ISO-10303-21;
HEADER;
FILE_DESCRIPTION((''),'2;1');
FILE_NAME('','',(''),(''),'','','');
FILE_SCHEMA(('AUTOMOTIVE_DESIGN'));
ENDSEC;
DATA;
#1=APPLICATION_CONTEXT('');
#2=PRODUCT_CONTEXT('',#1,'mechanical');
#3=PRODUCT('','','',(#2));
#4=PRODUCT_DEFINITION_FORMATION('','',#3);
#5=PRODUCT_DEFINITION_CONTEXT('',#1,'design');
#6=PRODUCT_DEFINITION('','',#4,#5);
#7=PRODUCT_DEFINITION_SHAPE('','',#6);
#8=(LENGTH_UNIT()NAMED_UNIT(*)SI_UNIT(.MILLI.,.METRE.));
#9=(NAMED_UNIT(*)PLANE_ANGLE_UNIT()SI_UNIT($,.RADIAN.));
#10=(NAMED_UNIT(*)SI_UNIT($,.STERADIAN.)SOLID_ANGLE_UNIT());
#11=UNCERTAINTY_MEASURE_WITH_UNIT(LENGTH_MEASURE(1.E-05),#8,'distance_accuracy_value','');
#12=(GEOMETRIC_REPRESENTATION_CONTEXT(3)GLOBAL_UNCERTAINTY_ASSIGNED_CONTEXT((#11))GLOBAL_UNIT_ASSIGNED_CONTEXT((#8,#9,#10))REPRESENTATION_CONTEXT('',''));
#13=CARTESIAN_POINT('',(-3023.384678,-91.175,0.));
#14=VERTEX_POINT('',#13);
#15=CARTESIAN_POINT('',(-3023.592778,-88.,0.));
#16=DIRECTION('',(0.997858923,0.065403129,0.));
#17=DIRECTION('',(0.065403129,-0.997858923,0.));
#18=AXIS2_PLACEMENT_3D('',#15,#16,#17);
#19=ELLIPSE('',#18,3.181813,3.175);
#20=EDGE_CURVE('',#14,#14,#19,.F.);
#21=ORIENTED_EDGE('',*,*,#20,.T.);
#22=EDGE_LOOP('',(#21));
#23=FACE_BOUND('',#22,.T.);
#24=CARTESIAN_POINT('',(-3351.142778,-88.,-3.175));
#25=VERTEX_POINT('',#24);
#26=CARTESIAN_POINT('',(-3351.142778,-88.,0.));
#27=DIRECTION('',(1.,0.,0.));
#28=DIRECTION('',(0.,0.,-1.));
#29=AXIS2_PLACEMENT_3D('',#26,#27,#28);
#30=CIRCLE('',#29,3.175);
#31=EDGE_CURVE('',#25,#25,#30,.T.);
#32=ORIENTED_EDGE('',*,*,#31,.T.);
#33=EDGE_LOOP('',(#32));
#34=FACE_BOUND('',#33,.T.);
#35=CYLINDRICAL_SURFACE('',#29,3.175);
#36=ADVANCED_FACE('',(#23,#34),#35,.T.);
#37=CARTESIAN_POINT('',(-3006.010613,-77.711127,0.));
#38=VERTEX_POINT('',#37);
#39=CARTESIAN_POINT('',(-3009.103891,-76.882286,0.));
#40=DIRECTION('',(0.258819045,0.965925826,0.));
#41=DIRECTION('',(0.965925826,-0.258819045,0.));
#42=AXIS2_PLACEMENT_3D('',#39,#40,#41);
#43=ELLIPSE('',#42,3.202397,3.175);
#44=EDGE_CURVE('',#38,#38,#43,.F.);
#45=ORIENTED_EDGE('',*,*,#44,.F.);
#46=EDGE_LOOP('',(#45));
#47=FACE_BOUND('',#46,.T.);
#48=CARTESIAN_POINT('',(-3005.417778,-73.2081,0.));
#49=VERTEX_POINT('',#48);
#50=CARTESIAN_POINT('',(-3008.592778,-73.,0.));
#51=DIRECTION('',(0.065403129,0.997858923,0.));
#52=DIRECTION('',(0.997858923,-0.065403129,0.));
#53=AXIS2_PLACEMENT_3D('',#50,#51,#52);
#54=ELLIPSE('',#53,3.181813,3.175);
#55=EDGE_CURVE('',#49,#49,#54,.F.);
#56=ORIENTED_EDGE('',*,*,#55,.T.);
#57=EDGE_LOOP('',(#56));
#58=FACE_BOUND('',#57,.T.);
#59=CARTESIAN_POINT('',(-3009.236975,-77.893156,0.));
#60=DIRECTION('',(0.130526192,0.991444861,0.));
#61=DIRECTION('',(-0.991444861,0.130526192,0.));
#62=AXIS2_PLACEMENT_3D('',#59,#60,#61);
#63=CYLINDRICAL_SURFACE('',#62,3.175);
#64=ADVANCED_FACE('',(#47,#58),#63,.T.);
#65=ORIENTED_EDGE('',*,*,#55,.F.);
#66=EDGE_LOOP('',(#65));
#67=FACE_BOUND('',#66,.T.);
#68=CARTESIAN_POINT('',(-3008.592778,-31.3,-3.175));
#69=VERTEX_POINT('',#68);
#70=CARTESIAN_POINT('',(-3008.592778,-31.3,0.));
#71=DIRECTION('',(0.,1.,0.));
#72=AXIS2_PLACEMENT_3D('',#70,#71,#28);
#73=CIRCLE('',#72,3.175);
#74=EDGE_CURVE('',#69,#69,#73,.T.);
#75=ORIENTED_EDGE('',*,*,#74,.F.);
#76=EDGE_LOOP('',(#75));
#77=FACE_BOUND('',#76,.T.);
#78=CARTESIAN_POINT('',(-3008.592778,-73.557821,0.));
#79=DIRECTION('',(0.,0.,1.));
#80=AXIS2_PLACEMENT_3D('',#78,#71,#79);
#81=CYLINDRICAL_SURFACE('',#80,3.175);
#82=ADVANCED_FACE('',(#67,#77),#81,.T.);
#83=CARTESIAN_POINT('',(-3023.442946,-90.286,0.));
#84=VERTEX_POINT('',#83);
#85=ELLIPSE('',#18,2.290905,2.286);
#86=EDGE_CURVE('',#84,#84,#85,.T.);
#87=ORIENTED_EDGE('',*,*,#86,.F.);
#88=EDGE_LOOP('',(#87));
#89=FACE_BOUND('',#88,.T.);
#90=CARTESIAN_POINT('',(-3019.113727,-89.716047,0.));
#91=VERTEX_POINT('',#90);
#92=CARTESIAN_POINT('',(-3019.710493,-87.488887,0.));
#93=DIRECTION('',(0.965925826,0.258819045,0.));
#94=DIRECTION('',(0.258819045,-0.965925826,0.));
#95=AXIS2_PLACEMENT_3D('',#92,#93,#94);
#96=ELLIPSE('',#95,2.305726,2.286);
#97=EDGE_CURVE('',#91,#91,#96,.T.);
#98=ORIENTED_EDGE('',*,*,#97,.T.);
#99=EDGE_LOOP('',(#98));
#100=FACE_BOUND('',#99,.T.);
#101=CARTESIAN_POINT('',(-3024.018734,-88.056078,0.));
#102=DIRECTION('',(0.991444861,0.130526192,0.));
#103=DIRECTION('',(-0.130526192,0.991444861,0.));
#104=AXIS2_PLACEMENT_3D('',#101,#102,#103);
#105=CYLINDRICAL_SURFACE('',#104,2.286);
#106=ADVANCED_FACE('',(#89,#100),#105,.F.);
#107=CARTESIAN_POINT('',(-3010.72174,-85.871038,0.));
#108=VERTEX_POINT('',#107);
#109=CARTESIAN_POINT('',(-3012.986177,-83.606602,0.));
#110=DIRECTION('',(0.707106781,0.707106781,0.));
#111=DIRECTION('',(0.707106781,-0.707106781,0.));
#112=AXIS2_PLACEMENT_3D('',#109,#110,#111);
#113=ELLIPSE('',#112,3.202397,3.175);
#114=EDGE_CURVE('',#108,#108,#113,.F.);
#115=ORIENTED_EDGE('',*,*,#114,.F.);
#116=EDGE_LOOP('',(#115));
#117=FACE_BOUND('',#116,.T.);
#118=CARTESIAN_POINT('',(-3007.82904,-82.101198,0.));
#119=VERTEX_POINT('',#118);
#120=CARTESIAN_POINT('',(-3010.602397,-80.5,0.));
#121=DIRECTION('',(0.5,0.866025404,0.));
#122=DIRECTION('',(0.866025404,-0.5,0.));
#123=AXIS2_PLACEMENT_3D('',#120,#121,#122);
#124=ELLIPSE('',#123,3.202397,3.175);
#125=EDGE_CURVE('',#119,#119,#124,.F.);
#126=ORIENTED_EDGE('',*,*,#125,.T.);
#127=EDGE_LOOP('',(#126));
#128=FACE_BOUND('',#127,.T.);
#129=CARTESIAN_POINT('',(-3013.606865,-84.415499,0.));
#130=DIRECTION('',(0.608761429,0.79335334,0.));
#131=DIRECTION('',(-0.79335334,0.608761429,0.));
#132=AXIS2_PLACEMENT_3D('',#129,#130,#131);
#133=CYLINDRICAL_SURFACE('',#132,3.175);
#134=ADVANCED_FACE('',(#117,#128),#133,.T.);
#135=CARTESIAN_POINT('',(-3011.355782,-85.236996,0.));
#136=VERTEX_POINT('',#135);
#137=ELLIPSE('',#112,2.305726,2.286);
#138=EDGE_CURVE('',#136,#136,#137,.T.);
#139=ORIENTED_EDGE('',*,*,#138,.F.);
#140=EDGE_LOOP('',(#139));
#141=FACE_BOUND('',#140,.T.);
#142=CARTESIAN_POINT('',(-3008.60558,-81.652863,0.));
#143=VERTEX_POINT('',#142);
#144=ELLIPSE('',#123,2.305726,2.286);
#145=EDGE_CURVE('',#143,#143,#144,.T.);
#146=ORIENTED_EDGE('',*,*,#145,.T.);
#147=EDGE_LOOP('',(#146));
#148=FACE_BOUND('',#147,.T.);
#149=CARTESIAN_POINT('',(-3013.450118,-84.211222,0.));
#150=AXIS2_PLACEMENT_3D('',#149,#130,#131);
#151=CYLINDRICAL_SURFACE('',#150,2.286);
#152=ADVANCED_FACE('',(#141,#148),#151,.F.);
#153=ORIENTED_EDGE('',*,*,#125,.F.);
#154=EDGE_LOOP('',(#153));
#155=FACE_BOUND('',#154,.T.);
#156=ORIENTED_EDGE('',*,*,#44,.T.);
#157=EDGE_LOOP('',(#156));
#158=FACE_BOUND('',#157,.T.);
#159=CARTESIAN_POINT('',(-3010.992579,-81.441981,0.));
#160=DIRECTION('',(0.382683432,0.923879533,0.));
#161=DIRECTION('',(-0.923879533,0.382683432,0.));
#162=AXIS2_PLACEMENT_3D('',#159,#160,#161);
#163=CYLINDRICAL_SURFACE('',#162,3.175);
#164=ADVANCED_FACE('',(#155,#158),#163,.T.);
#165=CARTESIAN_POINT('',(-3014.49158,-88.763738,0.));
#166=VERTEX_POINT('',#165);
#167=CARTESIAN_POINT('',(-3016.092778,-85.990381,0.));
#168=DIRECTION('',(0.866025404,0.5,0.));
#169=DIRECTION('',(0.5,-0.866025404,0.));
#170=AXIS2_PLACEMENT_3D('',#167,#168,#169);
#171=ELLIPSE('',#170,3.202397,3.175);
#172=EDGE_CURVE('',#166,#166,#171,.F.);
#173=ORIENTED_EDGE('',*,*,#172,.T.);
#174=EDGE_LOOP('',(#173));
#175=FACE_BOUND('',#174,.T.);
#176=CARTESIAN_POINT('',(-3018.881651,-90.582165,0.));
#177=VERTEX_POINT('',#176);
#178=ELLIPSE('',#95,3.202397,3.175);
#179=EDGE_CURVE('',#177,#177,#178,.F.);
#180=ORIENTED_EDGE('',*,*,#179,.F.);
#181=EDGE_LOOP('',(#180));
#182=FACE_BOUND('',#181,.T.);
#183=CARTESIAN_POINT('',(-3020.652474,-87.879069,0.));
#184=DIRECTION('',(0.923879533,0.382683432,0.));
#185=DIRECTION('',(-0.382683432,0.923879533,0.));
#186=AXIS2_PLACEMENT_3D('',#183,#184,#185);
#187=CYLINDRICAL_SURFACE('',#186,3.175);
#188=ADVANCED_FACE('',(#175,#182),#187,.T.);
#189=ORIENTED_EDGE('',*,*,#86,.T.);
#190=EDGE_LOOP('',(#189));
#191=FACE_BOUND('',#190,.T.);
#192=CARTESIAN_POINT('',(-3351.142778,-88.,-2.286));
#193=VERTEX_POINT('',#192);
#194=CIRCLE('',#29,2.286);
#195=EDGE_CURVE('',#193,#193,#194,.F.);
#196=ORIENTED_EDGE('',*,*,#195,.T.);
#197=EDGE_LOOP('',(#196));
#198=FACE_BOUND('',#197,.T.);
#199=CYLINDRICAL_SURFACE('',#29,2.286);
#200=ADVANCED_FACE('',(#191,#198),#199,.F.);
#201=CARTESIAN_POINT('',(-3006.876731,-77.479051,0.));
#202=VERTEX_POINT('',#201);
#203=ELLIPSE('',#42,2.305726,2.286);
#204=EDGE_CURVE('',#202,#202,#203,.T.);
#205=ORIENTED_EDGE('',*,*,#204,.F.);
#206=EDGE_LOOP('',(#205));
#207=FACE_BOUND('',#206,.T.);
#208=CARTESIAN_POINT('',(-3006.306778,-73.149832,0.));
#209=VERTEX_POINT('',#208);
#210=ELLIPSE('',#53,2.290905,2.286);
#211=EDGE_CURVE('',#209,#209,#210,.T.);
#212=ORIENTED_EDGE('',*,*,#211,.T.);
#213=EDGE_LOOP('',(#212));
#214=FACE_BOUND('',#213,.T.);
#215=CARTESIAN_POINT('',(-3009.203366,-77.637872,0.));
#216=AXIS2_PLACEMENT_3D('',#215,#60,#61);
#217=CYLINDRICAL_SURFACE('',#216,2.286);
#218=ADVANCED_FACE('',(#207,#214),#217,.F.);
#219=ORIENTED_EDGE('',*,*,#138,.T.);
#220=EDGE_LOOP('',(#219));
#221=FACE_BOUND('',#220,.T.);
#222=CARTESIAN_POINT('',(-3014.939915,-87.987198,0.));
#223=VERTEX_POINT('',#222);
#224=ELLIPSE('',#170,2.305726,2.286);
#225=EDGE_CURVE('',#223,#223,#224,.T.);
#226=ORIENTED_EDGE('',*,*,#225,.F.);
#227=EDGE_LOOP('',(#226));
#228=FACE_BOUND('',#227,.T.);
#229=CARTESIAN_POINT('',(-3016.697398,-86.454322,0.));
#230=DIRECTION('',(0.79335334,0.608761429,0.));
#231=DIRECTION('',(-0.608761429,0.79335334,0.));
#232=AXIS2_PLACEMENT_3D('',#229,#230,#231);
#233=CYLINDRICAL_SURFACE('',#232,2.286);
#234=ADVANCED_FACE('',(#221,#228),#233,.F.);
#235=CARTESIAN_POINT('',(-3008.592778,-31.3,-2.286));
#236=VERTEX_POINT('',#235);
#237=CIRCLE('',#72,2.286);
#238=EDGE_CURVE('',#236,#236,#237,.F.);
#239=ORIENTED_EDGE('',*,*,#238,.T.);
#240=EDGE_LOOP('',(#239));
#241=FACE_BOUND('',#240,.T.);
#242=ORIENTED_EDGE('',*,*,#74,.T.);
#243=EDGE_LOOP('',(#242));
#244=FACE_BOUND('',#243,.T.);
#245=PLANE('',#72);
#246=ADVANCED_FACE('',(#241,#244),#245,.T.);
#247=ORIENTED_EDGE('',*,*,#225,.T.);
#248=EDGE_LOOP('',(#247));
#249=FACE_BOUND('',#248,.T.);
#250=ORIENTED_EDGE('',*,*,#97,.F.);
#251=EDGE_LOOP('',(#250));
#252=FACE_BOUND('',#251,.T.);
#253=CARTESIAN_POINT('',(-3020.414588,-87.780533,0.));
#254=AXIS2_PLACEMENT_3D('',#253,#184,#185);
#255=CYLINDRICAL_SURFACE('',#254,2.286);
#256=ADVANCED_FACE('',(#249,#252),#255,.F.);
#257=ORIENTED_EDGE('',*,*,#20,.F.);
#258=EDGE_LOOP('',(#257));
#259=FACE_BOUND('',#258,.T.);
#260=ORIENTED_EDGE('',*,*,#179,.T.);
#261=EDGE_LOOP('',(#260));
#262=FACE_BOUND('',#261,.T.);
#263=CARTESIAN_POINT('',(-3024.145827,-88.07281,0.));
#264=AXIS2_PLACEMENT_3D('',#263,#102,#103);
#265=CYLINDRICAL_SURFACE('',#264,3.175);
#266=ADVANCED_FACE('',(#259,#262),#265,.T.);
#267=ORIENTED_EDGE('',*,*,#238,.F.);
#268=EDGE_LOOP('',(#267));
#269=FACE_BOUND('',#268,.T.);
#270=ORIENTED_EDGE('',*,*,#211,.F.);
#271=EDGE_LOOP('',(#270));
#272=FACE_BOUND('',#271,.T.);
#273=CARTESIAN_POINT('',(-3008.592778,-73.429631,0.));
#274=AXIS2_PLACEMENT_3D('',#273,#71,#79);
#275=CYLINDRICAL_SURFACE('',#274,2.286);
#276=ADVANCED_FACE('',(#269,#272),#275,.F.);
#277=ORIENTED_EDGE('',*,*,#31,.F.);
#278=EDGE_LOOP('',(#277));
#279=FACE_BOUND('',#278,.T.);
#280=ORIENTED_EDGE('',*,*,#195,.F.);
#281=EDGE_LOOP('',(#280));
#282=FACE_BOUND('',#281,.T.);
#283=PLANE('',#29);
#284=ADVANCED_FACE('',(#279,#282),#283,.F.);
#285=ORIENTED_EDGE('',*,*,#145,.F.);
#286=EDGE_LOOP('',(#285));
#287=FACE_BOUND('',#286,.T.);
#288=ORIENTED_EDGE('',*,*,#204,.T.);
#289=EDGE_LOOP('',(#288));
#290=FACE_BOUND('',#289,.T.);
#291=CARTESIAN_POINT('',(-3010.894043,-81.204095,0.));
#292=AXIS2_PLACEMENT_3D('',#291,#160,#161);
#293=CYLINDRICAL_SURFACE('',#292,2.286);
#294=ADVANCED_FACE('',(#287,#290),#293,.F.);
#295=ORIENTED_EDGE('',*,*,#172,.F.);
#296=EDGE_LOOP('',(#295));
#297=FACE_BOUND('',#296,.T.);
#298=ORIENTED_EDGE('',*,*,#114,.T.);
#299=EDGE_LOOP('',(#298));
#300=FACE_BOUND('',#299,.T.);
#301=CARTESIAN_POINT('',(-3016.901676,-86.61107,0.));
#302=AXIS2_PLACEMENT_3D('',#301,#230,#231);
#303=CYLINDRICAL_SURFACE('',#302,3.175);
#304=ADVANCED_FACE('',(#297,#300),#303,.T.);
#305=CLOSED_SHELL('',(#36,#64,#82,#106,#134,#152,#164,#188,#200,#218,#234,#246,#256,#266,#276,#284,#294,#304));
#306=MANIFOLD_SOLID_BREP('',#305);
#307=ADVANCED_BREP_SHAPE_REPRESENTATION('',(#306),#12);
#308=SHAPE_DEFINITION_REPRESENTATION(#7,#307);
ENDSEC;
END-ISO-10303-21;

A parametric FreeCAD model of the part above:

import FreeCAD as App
import Part
import Sketcher

V = App.Vector
Q = App.Units.Quantity

doc = App.newDocument("Part")
body = doc.addObject("PartDesign::Body", "Body")

# Sketch on YZ plane
sketch1 = doc.addObject("Sketcher::SketchObject", "Sketch")
body.addObject(sketch1)
sketch1.AttachmentSupport = (doc.YZ_Plane, [""])
sketch1.MapMode = "FlatFace"
sketch1.AttachmentOffset = App.Placement(V(0, 0, -3351.142778), App.Rotation())
sketch1.addGeometry(Part.Circle(V(-88, 0, 0), V(0, 0, 1), 3.2), False)
sketch1.addGeometry(Part.Circle(V(-88, 0, 0), V(0, 0, 1), 2.3), False)
sketch1.addConstraint(Sketcher.Constraint("Coincident", 1, 3, 0, 3))
sketch1.addConstraint(Sketcher.Constraint("PointOnObject", 0, 3, -1))
sketch1.addConstraint(Sketcher.Constraint("Diameter", 0, Q("0.25 in")))
sketch1.addConstraint(Sketcher.Constraint("Diameter", 1, Q("0.18 in")))
sketch1.addConstraint(Sketcher.Constraint("DistanceX", 0, 3, -1, 1, Q("88 mm")))

# Sketch on XY plane
sketch2 = doc.addObject("Sketcher::SketchObject", "Sketch001")
body.addObject(sketch2)
sketch2.AttachmentSupport = (doc.XY_Plane, [""])
sketch2.MapMode = "FlatFace"
sketch2.addGeometry(Part.LineSegment(V(-3351.1, -88, 0), V(-3023.6, -88, 0)), False)
sketch2.addGeometry(Part.LineSegment(V(-3023.6, -88, 0), V(-3019.7, -87.5, 0)), False)
sketch2.addGeometry(Part.LineSegment(V(-3019.7, -87.5, 0), V(-3016.1, -86, 0)), False)
sketch2.addGeometry(Part.LineSegment(V(-3016.1, -86, 0), V(-3013, -83.6, 0)), False)
sketch2.addGeometry(Part.LineSegment(V(-3013, -83.6, 0), V(-3010.6, -80.5, 0)), False)
sketch2.addGeometry(Part.LineSegment(V(-3010.6, -80.5, 0), V(-3009.1, -76.9, 0)), False)
sketch2.addGeometry(Part.LineSegment(V(-3009.1, -76.9, 0), V(-3008.6, -73, 0)), False)
sketch2.addGeometry(Part.LineSegment(V(-3008.6, -73, 0), V(-3008.6, -31.3, 0)), False)
sketch2.addConstraint(Sketcher.Constraint("Coincident", 0, 2, 1, 1))
sketch2.addConstraint(Sketcher.Constraint("Coincident", 1, 2, 2, 1))
sketch2.addConstraint(Sketcher.Constraint("Coincident", 2, 2, 3, 1))
sketch2.addConstraint(Sketcher.Constraint("Coincident", 3, 2, 4, 1))
sketch2.addConstraint(Sketcher.Constraint("Coincident", 4, 2, 5, 1))
sketch2.addConstraint(Sketcher.Constraint("Coincident", 5, 2, 6, 1))
sketch2.addConstraint(Sketcher.Constraint("Coincident", 6, 2, 7, 1))
sketch2.addConstraint(Sketcher.Constraint("Horizontal", 0))
sketch2.addConstraint(Sketcher.Constraint("Vertical", 7))
sketch2.addConstraint(Sketcher.Constraint("Equal", 1, 2))
sketch2.addConstraint(Sketcher.Constraint("Equal", 2, 3))
sketch2.addConstraint(Sketcher.Constraint("Equal", 3, 4))
sketch2.addConstraint(Sketcher.Constraint("Equal", 4, 5))
sketch2.addConstraint(Sketcher.Constraint("Equal", 5, 6))
sketch2.addConstraint(Sketcher.Constraint("Angle", 1, Q("7.5 deg")))
sketch2.addConstraint(Sketcher.Constraint("Angle", 2, Q("22.5 deg")))
sketch2.addConstraint(Sketcher.Constraint("Angle", 3, Q("37.5 deg")))
sketch2.addConstraint(Sketcher.Constraint("Angle", 4, Q("52.5 deg")))
sketch2.addConstraint(Sketcher.Constraint("Angle", 5, Q("67.5 deg")))
sketch2.addConstraint(Sketcher.Constraint("Angle", 6, Q("82.5 deg")))
sketch2.addConstraint(Sketcher.Constraint("DistanceX", 0, 1, 0, 2, Q("327.55 mm")))
sketch2.addConstraint(Sketcher.Constraint("DistanceY", 7, 1, 7, 2, Q("41.7 mm")))
sketch2.addConstraint(Sketcher.Constraint("DistanceY", 0, 1, -1, 1, Q("88 mm")))
sketch2.addConstraint(Sketcher.Constraint("DistanceY", 3, 2, -1, 1, Q("83.606602 mm")))
sketch2.addConstraint(Sketcher.Constraint("DistanceX", 0, 1, -1, 1, Q("3351.142778 mm")))
doc.recompute()

additivepipe = doc.addObject("PartDesign::AdditivePipe", "AdditivePipe")
body.addObject(additivepipe)
additivepipe.Profile = sketch1
additivepipe.Spine = (sketch2, ["Edge1", "Edge2", "Edge3", "Edge4", "Edge5", "Edge6", "Edge7", "Edge8"])
additivepipe.Transition = "Right corner"

doc.recompute()
